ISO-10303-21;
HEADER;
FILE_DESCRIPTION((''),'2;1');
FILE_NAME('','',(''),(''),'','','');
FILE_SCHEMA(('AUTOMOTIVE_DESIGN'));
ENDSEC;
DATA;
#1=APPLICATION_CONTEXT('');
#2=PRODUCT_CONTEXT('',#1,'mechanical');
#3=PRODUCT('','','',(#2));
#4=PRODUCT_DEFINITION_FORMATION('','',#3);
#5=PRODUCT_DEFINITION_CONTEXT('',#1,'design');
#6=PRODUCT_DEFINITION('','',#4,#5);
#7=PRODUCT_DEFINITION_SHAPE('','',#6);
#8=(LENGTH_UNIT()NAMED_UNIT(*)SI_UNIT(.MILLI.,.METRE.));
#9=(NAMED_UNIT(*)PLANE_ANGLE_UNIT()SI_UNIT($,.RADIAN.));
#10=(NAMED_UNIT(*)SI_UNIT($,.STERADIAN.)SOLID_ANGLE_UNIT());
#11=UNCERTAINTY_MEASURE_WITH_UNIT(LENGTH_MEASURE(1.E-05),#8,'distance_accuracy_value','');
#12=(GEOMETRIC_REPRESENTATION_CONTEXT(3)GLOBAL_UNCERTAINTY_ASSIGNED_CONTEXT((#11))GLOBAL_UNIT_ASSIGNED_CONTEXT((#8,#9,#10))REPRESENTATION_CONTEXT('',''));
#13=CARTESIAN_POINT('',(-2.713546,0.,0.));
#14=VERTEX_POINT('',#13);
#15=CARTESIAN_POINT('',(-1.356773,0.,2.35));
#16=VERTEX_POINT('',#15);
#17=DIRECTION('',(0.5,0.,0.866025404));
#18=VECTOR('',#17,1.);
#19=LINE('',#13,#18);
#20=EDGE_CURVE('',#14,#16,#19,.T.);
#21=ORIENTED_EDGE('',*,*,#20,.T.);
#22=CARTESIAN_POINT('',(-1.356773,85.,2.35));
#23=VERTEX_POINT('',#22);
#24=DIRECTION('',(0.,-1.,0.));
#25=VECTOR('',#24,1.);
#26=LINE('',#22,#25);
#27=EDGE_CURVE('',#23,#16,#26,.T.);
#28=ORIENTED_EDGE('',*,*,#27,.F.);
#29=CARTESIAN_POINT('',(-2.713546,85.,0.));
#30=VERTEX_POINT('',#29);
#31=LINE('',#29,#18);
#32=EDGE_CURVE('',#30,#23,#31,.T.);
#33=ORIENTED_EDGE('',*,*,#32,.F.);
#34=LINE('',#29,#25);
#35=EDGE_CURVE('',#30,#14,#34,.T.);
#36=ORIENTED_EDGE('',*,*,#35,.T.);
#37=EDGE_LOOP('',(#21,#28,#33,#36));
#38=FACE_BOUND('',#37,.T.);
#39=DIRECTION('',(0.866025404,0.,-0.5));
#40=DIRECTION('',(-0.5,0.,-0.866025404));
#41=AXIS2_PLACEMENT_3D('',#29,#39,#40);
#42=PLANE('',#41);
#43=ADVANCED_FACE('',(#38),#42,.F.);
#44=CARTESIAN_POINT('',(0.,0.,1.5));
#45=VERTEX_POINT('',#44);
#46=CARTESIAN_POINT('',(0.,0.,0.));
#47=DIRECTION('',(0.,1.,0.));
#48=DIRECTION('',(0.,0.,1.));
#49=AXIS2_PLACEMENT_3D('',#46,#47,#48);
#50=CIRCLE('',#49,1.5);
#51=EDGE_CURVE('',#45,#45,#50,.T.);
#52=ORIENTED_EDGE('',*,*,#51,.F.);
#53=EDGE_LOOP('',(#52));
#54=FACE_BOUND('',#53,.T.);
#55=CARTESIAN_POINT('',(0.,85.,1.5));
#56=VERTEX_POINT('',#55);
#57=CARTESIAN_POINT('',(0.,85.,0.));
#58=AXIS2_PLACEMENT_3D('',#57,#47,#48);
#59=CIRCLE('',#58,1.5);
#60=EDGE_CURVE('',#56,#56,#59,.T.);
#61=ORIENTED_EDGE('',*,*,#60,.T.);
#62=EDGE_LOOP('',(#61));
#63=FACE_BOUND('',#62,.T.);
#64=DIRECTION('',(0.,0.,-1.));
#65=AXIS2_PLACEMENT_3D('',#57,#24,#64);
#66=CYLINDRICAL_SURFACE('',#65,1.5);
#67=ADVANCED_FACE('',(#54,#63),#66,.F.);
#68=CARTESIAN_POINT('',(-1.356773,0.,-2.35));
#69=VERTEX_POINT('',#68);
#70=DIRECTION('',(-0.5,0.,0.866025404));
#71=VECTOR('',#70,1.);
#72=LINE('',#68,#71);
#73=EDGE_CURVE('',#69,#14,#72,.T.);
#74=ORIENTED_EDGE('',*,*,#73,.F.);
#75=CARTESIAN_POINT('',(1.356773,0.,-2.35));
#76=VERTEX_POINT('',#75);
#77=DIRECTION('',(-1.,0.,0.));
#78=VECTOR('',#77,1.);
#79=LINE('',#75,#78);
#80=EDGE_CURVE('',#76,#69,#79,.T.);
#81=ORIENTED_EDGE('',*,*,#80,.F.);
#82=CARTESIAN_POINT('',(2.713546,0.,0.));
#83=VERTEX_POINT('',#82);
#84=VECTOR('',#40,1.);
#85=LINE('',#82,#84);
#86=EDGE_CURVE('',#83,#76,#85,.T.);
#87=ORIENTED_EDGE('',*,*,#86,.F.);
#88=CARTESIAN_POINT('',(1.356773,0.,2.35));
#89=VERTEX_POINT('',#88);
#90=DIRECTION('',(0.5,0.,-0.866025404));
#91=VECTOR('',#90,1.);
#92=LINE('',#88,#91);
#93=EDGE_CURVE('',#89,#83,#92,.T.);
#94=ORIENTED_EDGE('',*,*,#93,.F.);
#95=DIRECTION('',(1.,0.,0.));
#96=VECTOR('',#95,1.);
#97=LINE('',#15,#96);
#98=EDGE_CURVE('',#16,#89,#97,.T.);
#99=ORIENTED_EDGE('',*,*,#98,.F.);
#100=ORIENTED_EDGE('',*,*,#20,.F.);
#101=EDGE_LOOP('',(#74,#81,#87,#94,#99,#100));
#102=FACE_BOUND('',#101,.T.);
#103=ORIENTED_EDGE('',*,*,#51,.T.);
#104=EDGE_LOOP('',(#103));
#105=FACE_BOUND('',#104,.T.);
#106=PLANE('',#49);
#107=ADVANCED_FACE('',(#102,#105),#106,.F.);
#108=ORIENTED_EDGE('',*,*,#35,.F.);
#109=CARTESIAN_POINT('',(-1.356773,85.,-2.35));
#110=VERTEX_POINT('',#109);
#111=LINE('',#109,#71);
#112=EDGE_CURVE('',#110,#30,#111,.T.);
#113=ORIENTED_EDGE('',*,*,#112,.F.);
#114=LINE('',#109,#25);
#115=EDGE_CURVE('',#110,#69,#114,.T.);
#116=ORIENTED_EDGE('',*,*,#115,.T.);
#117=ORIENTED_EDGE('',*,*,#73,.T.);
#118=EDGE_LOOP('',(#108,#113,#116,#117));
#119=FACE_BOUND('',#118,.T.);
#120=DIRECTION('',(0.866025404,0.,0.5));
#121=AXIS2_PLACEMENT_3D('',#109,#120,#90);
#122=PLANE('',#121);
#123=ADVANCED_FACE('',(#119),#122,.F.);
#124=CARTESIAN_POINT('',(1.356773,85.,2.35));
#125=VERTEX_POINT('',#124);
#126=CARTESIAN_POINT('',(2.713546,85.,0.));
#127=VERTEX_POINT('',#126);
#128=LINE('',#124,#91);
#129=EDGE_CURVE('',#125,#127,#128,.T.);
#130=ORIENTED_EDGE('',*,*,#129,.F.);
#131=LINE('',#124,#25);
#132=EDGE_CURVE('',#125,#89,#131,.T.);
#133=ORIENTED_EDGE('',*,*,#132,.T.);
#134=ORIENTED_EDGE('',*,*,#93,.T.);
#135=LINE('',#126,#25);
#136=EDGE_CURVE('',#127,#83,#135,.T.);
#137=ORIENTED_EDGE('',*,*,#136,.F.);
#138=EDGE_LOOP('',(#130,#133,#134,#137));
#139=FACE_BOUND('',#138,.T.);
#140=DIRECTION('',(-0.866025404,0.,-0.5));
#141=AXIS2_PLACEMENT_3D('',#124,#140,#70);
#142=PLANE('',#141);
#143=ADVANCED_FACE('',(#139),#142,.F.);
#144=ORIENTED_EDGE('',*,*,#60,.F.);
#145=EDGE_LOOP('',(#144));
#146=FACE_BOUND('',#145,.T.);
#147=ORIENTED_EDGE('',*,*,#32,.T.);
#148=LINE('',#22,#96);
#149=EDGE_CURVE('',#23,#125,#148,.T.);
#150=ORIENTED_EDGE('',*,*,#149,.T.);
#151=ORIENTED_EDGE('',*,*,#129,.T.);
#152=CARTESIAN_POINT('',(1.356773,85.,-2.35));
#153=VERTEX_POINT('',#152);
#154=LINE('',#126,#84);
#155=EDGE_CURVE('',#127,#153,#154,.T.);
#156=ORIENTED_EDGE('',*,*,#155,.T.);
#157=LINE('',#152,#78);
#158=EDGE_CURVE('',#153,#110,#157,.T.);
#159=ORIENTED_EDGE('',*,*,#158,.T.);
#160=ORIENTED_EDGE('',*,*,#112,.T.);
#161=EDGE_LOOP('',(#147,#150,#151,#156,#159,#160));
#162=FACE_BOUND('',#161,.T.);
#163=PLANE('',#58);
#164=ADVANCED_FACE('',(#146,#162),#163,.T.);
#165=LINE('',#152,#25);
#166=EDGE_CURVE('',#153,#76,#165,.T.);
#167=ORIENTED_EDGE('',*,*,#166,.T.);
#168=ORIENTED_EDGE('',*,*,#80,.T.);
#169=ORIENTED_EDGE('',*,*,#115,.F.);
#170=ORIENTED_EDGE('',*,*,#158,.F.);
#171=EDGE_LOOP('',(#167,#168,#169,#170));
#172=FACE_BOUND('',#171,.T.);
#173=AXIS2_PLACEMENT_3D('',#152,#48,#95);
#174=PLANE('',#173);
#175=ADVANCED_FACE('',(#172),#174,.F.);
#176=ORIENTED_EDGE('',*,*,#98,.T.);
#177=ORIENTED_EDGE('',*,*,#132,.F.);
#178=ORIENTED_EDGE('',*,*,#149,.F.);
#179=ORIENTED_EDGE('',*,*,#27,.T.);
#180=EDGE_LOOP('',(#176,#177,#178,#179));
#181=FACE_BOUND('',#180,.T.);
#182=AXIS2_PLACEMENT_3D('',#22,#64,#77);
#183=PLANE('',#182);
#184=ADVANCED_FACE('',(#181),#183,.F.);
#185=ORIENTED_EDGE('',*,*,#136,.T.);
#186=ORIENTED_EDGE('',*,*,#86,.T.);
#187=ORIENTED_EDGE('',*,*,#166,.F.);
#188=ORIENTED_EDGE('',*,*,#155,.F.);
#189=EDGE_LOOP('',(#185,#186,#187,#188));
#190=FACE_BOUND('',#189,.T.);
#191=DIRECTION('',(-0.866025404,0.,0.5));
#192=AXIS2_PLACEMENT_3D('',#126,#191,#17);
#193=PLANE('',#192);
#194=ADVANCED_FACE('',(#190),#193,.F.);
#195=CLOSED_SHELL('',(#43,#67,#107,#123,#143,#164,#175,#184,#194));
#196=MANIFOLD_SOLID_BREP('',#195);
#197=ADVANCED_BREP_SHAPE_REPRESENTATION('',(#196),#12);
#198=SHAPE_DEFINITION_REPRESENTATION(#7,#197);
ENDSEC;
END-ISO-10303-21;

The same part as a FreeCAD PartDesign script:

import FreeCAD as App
import Part
import Sketcher
from FreeCAD import Vector
Q = App.Units.Quantity


def add_polygon(sketch, points):
    """Adds a closed chain of lines whose ends are joined by coincident constraints."""
    first, n = sketch.GeometryCount, len(points)
    for a, b in zip(points, points[1:] + points[:1]):
        sketch.addGeometry(Part.LineSegment(App.Vector(*a, 0), App.Vector(*b, 0)), False)
    for i in range(n):
        sketch.addConstraint(Sketcher.Constraint("Coincident", first + i, 2, first + (i + 1) % n, 1))

doc = App.newDocument("Part")
params = doc.addObject("Spreadsheet::Sheet", "Params")
for row, (alias, value) in enumerate([
    ("sketch1_diameter", "3 mm"),
    ("pad1_length", "85 mm"),
], start=1):
    params.set(f"A{row}", alias)
    params.set(f"B{row}", "=" + value)
    params.setAlias(f"B{row}", alias)

body = doc.addObject("PartDesign::Body", "Body")

sketch1 = doc.addObject("Sketcher::SketchObject", "Sketch")
body.addObject(sketch1)
sketch1.AttachmentSupport = (doc.XZ_Plane, [""])
sketch1.MapMode = "FlatFace"
add_polygon(sketch1, [(2.7, 0), (1.4, -2.4), (-1.4, -2.4), (-2.7, 0), (-1.4, 2.4), (1.4, 2.4)])
sketch1.addGeometry(Part.Circle(Vector(0, 0, 0), Vector(0, 0, 1), 1.5), False)
sketch1.addConstraint([
    Sketcher.Constraint("Horizontal", 1),
    Sketcher.Constraint("Horizontal", 4),
    Sketcher.Constraint("Coincident", 6, 3, -1, 1),
    Sketcher.Constraint("Symmetric", 0, 2, 3, 2, -1, 1),
    Sketcher.Constraint("Symmetric", 2, 2, 5, 2, -1, 1),
    Sketcher.Constraint("PointOnObject", 2, 2, -1),
    Sketcher.Constraint("Parallel", 2, 5),
    Sketcher.Constraint("Vertical", 1, 2, 3, 2),
    Sketcher.Constraint("Diameter", 6, Q("3 mm")),
    Sketcher.Constraint("Angle", 0, Q("-120 deg")),
    Sketcher.Constraint("DistanceY", 1, 2, 3, 2, Q("4.7 mm")),
    Sketcher.Constraint("DistanceX", 1, 2, 1, 1, Q("2.713546 mm")),
])
sketch1.setExpression("Constraints[14]", "Params.sketch1_diameter")
pad1 = doc.addObject("PartDesign::Pad", "Pad")
body.addObject(pad1)
pad1.Profile = sketch1
pad1.setExpression("Length", "Params.pad1_length")
pad1.Reversed = True

doc.recompute()
